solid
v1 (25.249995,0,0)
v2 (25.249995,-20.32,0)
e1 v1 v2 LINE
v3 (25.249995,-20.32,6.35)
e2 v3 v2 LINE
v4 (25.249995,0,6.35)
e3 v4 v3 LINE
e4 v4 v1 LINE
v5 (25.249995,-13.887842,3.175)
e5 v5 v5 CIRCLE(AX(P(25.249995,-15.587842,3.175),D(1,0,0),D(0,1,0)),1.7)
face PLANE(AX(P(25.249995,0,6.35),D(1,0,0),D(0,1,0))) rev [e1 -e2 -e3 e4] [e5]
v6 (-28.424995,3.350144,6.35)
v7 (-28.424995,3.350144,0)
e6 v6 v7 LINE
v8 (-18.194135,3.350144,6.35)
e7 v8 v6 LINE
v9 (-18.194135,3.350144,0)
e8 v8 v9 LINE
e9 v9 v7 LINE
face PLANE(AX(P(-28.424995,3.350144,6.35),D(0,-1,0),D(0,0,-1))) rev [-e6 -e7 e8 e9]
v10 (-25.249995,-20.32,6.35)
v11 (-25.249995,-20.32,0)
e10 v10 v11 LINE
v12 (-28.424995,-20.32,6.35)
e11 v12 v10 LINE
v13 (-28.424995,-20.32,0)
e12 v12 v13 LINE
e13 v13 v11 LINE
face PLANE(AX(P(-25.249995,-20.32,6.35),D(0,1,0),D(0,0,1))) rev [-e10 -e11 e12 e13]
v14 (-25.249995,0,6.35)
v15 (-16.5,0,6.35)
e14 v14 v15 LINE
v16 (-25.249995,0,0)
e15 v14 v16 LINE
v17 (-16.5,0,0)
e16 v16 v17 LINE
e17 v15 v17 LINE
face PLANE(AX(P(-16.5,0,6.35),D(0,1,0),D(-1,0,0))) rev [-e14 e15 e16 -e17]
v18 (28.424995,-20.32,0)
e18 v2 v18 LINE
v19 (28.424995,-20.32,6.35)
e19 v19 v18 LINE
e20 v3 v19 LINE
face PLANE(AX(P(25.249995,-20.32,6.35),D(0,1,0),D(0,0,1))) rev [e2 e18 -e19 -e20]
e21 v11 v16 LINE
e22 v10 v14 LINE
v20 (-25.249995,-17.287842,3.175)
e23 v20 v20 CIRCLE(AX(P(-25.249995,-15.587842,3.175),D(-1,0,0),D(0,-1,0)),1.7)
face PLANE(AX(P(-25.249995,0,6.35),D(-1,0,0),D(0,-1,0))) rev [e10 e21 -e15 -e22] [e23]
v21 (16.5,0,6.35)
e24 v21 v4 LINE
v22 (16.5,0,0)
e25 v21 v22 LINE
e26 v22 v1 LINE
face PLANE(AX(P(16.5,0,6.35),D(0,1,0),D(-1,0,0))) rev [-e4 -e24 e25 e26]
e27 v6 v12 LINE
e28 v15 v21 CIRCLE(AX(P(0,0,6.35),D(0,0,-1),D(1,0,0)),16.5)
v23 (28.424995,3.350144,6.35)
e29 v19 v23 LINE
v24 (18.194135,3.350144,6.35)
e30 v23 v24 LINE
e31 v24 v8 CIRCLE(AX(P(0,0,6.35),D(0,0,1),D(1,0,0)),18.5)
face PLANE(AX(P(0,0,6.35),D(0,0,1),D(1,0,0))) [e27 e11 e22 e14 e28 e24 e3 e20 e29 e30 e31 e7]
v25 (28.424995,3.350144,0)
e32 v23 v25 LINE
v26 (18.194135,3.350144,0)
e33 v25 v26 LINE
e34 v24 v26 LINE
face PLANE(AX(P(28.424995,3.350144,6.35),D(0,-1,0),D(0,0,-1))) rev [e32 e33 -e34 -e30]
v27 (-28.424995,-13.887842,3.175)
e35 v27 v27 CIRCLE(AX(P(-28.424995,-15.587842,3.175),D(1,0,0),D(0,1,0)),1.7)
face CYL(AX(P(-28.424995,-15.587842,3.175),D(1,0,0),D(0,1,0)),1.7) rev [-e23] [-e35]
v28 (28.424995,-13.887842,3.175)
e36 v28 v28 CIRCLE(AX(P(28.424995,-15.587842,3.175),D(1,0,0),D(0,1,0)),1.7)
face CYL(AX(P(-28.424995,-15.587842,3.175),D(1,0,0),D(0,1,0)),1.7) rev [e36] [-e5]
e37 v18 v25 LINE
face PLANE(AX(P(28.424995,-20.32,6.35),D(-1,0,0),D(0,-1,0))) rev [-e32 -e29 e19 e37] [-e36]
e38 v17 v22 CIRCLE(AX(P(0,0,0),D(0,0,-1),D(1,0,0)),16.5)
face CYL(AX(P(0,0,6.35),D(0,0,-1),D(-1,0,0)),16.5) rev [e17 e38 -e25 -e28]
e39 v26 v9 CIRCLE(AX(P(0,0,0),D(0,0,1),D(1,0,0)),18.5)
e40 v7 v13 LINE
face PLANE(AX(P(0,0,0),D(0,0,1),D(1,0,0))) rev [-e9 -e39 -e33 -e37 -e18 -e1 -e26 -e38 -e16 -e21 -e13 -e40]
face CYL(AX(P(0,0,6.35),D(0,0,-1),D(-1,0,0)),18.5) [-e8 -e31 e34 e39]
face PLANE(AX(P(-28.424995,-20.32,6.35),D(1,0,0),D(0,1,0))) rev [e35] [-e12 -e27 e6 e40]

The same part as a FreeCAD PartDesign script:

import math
import FreeCAD as App
import Part
import Sketcher

V = App.Vector
Q = App.Units.Quantity

doc = App.newDocument("Part")
body = doc.addObject("PartDesign::Body", "Body")

sketch1 = body.newObject("Sketcher::SketchObject", "Sketch")
sketch1.AttachmentSupport = (doc.getObject("XY_Plane"), [""])
sketch1.MapMode = "FlatFace"
sketch1.addGeometry(Part.LineSegment(V(-25.2, 0, 0), V(-16.5, 0, 0)), False)
sketch1.addGeometry(Part.ArcOfCircle(Part.Circle(V(0, 0, 0), V(0, 0, 1), 16.5), math.radians(0), math.radians(180)), False)
sketch1.addGeometry(Part.LineSegment(V(16.5, 0, 0), V(25.2, 0, 0)), False)
sketch1.addGeometry(Part.LineSegment(V(25.2, 0, 0), V(25.2, -20.3, 0)), False)
sketch1.addGeometry(Part.LineSegment(V(25.2, -20.3, 0), V(28.4, -20.3, 0)), False)
sketch1.addGeometry(Part.LineSegment(V(28.4, -20.3, 0), V(28.4, 3.4, 0)), False)
sketch1.addGeometry(Part.LineSegment(V(28.4, 3.4, 0), V(18.2, 3.4, 0)), False)
sketch1.addGeometry(Part.ArcOfCircle(Part.Circle(V(0, 0, 0), V(0, 0, 1), 18.5), math.radians(10), math.radians(170)), False)
sketch1.addGeometry(Part.LineSegment(V(-18.2, 3.4, 0), V(-28.4, 3.4, 0)), False)
sketch1.addGeometry(Part.LineSegment(V(-28.4, 3.4, 0), V(-28.4, -20.3, 0)), False)
sketch1.addGeometry(Part.LineSegment(V(-28.4, -20.3, 0), V(-25.2, -20.3, 0)), False)
sketch1.addGeometry(Part.LineSegment(V(-25.2, -20.3, 0), V(-25.2, 0, 0)), False)
sketch1.addConstraint(Sketcher.Constraint("Coincident", 0, 2, 1, 2))
sketch1.addConstraint(Sketcher.Constraint("Coincident", 1, 1, 2, 1))
sketch1.addConstraint(Sketcher.Constraint("Coincident", 2, 2, 3, 1))
sketch1.addConstraint(Sketcher.Constraint("Coincident", 3, 2, 4, 1))
sketch1.addConstraint(Sketcher.Constraint("Coincident", 4, 2, 5, 1))
sketch1.addConstraint(Sketcher.Constraint("Coincident", 5, 2, 6, 1))
sketch1.addConstraint(Sketcher.Constraint("Coincident", 6, 2, 7, 1))
sketch1.addConstraint(Sketcher.Constraint("Coincident", 7, 2, 8, 1))
sketch1.addConstraint(Sketcher.Constraint("Coincident", 8, 2, 9, 1))
sketch1.addConstraint(Sketcher.Constraint("Coincident", 9, 2, 10, 1))
sketch1.addConstraint(Sketcher.Constraint("Coincident", 10, 2, 11, 1))
sketch1.addConstraint(Sketcher.Constraint("Coincident", 11, 2, 0, 1))
sketch1.addConstraint(Sketcher.Constraint("Horizontal", 0))
sketch1.addConstraint(Sketcher.Constraint("Horizontal", 2))
sketch1.addConstraint(Sketcher.Constraint("Vertical", 3))
sketch1.addConstraint(Sketcher.Constraint("Horizontal", 4))
sketch1.addConstraint(Sketcher.Constraint("Vertical", 5))
sketch1.addConstraint(Sketcher.Constraint("Horizontal", 6))
sketch1.addConstraint(Sketcher.Constraint("Horizontal", 8))
sketch1.addConstraint(Sketcher.Constraint("Vertical", 9))
sketch1.addConstraint(Sketcher.Constraint("Horizontal", 10))
sketch1.addConstraint(Sketcher.Constraint("Vertical", 11))
sketch1.addConstraint(Sketcher.Constraint("Coincident", 1, 3, -1, 1))
sketch1.addConstraint(Sketcher.Constraint("Coincident", 7, 3, -1, 1))
sketch1.addConstraint(Sketcher.Constraint("Symmetric", 2, 2, 11, 2, -1, 1))
sketch1.addConstraint(Sketcher.Constraint("Symmetric", 5, 2, 8, 2, -2))
sketch1.addConstraint(Sketcher.Constraint("PointOnObject", 0, 2, -1))
sketch1.addConstraint(Sketcher.Constraint("Horizontal", 4, 2, 9, 2))
sketch1.addConstraint(Sketcher.Constraint("Radius", 1, Q("16.5 mm")))
sketch1.addConstraint(Sketcher.Constraint("Radius", 7, Q("18.5 mm")))
sketch1.addConstraint(Sketcher.Constraint("DistanceY", 3, 2, 3, 1, Q("20.32 mm")))
sketch1.addConstraint(Sketcher.Constraint("DistanceX", 4, 1, 4, 2, Q("3.175 mm")))
sketch1.addConstraint(Sketcher.Constraint("DistanceX", 6, 2, 6, 1, Q("10.230861 mm")))
sketch1.addConstraint(Sketcher.Constraint("DistanceX", 0, 1, 0, 2, Q("8.749995 mm")))
pad1 = body.newObject("PartDesign::Pad", "Pad")
pad1.Profile = sketch1
pad1.Length = 6.35

sketch2 = body.newObject("Sketcher::SketchObject", "Sketch001")
sketch2.AttachmentSupport = (doc.getObject("YZ_Plane"), [""])
sketch2.MapMode = "FlatFace"
sketch2.AttachmentOffset = App.Placement(V(0, 0, 28.424995), App.Rotation())
sketch2.addGeometry(Part.Circle(V(-15.6, 3.2, 0), V(0, 0, 1), 1.7), False)
sketch2.addConstraint(Sketcher.Constraint("Diameter", 0, Q("3.4 mm")))
sketch2.addConstraint(Sketcher.Constraint("DistanceY", -1, 1, 0, 3, Q("3.175 mm")))
sketch2.addConstraint(Sketcher.Constraint("DistanceX", 0, 3, -1, 1, Q("15.587842 mm")))
pocket1 = body.newObject("PartDesign::Pocket", "Pocket")
pocket1.Profile = sketch2
pocket1.Type = "ThroughAll"

doc.recompute()
